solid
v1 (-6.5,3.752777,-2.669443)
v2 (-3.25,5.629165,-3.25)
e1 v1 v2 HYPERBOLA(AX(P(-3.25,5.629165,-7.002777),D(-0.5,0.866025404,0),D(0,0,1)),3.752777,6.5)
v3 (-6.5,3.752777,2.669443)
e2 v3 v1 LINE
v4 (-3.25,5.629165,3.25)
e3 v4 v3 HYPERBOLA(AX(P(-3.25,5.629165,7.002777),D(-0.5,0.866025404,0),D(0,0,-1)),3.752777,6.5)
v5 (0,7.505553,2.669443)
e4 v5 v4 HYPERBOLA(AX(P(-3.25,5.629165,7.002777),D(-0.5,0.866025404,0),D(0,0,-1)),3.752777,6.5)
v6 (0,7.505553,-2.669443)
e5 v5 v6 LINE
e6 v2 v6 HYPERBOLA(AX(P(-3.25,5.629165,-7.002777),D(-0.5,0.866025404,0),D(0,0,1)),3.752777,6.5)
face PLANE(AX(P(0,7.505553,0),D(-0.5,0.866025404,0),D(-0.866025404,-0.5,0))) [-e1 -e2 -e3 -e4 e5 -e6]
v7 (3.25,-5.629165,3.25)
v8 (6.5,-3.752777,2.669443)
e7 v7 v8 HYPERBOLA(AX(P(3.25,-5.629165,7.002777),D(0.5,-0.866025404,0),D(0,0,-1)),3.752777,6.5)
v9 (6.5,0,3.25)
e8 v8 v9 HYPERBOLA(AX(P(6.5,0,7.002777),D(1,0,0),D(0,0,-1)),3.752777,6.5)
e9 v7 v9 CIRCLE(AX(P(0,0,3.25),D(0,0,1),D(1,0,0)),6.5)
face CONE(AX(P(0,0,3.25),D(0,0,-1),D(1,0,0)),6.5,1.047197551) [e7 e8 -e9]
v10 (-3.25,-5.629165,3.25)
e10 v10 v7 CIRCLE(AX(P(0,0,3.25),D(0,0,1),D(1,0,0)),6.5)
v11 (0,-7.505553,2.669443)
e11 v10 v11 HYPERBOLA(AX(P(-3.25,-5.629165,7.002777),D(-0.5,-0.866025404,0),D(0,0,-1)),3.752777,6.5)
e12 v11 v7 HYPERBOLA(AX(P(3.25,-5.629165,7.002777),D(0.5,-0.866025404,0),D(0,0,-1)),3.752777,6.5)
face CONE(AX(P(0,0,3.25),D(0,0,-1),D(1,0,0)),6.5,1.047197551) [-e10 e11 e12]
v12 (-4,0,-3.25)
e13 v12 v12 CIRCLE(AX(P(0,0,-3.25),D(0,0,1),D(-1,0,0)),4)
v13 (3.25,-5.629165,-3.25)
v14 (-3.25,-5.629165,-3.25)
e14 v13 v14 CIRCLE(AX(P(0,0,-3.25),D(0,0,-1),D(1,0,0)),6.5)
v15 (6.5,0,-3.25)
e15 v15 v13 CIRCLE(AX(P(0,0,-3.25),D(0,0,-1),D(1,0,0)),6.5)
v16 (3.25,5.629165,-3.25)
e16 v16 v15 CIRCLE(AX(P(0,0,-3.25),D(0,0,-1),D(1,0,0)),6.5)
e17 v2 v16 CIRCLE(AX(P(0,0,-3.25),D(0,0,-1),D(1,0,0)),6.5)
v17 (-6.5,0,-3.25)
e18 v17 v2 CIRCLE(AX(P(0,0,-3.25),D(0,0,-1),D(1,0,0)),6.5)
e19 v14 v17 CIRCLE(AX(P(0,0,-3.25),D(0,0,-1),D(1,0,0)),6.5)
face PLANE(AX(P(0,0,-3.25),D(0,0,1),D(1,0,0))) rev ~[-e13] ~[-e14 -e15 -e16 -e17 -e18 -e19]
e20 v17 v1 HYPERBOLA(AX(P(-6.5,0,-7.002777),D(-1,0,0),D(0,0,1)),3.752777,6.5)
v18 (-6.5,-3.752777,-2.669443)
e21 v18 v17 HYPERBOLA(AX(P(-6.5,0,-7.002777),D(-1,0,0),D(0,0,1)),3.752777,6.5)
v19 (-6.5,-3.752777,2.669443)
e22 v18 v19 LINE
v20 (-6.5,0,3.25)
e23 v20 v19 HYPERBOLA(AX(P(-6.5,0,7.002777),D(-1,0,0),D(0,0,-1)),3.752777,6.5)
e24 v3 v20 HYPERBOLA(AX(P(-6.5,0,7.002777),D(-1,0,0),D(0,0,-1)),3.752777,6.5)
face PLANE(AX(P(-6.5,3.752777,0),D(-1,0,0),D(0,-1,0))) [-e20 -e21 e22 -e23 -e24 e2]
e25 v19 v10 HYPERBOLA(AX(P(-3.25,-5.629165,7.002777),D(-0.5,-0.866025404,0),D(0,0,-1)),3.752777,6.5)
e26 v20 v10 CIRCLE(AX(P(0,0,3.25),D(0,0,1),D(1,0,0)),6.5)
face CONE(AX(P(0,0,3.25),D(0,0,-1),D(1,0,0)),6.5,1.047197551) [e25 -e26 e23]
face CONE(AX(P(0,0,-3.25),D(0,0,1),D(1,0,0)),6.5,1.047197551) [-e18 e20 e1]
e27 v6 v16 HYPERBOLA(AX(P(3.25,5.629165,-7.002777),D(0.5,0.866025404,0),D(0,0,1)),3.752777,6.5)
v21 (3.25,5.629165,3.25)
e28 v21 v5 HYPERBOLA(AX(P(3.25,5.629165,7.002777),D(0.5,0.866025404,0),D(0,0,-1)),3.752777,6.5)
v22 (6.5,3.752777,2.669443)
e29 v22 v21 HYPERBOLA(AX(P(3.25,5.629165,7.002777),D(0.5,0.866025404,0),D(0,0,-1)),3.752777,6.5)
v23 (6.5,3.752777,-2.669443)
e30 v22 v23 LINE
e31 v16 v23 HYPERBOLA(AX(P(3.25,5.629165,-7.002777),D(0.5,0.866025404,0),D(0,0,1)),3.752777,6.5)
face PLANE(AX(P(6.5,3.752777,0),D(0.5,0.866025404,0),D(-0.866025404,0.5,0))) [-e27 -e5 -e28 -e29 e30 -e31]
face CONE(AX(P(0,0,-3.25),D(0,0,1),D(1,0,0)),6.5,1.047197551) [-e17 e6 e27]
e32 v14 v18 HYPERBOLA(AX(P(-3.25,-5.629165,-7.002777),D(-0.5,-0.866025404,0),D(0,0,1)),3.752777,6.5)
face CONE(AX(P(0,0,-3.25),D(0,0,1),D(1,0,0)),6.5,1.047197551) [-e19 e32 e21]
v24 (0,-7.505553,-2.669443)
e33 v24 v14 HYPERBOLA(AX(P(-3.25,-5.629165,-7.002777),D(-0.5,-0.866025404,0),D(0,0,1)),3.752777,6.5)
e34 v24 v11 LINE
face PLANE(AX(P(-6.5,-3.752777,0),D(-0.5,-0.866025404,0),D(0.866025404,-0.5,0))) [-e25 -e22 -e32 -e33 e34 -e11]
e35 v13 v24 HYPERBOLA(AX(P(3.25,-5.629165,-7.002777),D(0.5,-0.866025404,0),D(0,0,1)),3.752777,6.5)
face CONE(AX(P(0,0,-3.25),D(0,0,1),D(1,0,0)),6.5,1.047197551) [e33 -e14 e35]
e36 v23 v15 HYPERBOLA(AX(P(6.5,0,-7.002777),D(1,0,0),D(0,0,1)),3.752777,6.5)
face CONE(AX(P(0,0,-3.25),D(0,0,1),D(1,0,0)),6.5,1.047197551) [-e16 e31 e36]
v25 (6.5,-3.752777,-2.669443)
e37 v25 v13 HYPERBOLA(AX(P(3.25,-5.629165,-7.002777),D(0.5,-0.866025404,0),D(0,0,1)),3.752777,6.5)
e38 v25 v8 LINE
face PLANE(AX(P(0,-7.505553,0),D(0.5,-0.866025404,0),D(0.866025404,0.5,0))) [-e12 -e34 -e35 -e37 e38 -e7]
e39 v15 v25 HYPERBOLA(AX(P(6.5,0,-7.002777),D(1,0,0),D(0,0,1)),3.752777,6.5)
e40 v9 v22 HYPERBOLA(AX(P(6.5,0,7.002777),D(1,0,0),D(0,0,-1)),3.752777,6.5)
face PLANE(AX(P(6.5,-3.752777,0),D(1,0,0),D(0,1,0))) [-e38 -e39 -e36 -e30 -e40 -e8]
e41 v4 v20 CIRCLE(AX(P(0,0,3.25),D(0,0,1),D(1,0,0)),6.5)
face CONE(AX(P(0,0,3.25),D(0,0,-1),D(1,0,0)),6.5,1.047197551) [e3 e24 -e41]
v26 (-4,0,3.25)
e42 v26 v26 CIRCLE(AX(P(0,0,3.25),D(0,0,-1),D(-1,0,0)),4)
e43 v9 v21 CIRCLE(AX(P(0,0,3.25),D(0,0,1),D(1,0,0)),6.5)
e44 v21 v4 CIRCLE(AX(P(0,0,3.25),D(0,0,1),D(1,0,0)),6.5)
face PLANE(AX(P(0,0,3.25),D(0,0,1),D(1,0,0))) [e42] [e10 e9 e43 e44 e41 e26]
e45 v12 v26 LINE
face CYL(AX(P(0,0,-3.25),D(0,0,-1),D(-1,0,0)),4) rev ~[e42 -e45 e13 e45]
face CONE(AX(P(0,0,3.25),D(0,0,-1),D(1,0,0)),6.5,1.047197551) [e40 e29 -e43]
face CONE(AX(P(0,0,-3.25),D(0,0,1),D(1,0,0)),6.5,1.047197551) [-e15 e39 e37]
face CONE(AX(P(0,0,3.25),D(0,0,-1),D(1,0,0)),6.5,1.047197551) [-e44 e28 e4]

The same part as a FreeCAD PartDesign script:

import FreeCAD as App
import Part
import Sketcher
from FreeCAD import Vector
Q = App.Units.Quantity


def faces_at(feature, points):
    """Names of the faces that lie closest to the given points."""
    faces = feature.Shape.Faces
    near = lambda p: min(range(len(faces)), key=lambda i: faces[i].distToShape(Part.Vertex(*p))[0])
    return sorted({f"Face{near(p) + 1}" for p in points})


def add_polygon(sketch, points):
    """Adds a closed chain of lines whose ends are joined by coincident constraints."""
    first, n = sketch.GeometryCount, len(points)
    for a, b in zip(points, points[1:] + points[:1]):
        sketch.addGeometry(Part.LineSegment(App.Vector(*a, 0), App.Vector(*b, 0)), False)
    for i in range(n):
        sketch.addConstraint(Sketcher.Constraint("Coincident", first + i, 2, first + (i + 1) % n, 1))

doc = App.newDocument("Part")
params = doc.addObject("Spreadsheet::Sheet", "Params")
for row, (alias, value) in enumerate([
    ("pad1_length", "6.5 mm"),
    ("sketch2_width", "4 mm"),
    ("groove_angle", "360 deg"),
    ("sketch3_width", "4 mm"),
    ("groove2_angle", "360 deg"),
    ("sketch4_diameter", "8 mm"),
    ("pad2_length", "6.5 mm"),
    ("sketch5_diameter", "13 mm"),
    ("sketch5_height", "109.18 mm"),
    ("pad3_length", "25.4 mm"),
    ("draft_angle", "60 deg"),
    ("sketch6_diameter", "13 mm"),
    ("sketch6_height", "109.18 mm"),
    ("pad4_length", "25.4 mm"),
    ("draft2_angle", "60 deg"),
], start=1):
    params.set(f"A{row}", alias)
    params.set(f"B{row}", "=" + value)
    params.setAlias(f"B{row}", alias)

body = doc.addObject("PartDesign::Body", "Body")

sketch1 = body.newObject("Sketcher::SketchObject", "Sketch")
sketch1.AttachmentSupport = (doc.getObject("XY_Plane"), [""])
sketch1.MapMode = "FlatFace"
add_polygon(sketch1, [(-6, 4), (-6, -4), (0, -8), (6, -4), (6, 4), (0, 8)])
sketch1.addConstraint([
    Sketcher.Constraint("Vertical", 0),
    Sketcher.Constraint("Vertical", 3),
    Sketcher.Constraint("Symmetric", 0, 2, 3, 2, -1, 1),
    Sketcher.Constraint("Symmetric", 1, 2, 4, 2, -1, 1),
    Sketcher.Constraint("PointOnObject", 1, 2, -2),
    Sketcher.Constraint("Parallel", 2, 5),
    Sketcher.Constraint("Horizontal", 0, 2, 2, 2),
    Sketcher.Constraint("Angle", 1, Q("-30 deg")),
    Sketcher.Constraint("DistanceX", 0, 2, 2, 2, 13.0),
    Sketcher.Constraint("DistanceY", 0, 2, 0, 1, 7.505554),
])
pad1 = body.newObject("PartDesign::Pad", "Pad")
pad1.Profile = sketch1
pad1.setExpression("Length", "Params.pad1_length")
pad1.Midplane = True

sketch2 = body.newObject("Sketcher::SketchObject", "Sketch001")
sketch2.AttachmentSupport = (doc.getObject("YZ_Plane"), [""])
sketch2.MapMode = "FlatFace"
add_polygon(sketch2, [(0, 3.2), (-4, 3.2), (0, -0.8)])
sketch2.addConstraint([
    Sketcher.Constraint("Horizontal", 0),
    Sketcher.Constraint("Vertical", 2),
    Sketcher.Constraint("PointOnObject", 1, 2, -2),
    Sketcher.Constraint("Equal", 0, 2),
    Sketcher.Constraint("DistanceX", 0, 2, 0, 1, 4.0),
    Sketcher.Constraint("DistanceY", -1, 1, 0, 2, 3.25),
])
sketch2.setExpression("Constraints[7]", "Params.sketch2_width")
groove = body.newObject("PartDesign::Groove", "Groove")
groove.Profile = sketch2
groove.ReferenceAxis = (sketch2, ["V_Axis"])
groove.setExpression("Angle", "Params.groove_angle")

sketch3 = body.newObject("Sketcher::SketchObject", "Sketch002")
sketch3.AttachmentSupport = (doc.getObject("YZ_Plane"), [""])
sketch3.MapMode = "FlatFace"
add_polygon(sketch3, [(0, -3.2), (4, -3.2), (0, 0.8)])
sketch3.addConstraint([
    Sketcher.Constraint("Horizontal", 0),
    Sketcher.Constraint("Vertical", 2),
    Sketcher.Constraint("PointOnObject", 1, 2, -2),
    Sketcher.Constraint("Equal", 0, 2),
    Sketcher.Constraint("DistanceX", 0, 1, 0, 2, 4.0),
    Sketcher.Constraint("DistanceY", 0, 2, -1, 1, 3.25),
])
sketch3.setExpression("Constraints[7]", "Params.sketch3_width")
groove2 = body.newObject("PartDesign::Groove", "Groove001")
groove2.Profile = sketch3
groove2.ReferenceAxis = (sketch3, ["V_Axis"])
groove2.setExpression("Angle", "Params.groove2_angle")
body2 = doc.addObject("PartDesign::Body", "Body001")

sketch4 = body2.newObject("Sketcher::SketchObject", "Sketch003")
sketch4.AttachmentSupport = (doc.getObject("XY_Plane001"), [""])
sketch4.MapMode = "FlatFace"
sketch4.AttachmentOffset = App.Placement(Vector(0, 0, -3.25), App.Rotation())
sketch4.addGeometry(Part.Circle(Vector(0, 0, 0), Vector(0, 0, 1), 4), False)
sketch4.addConstraint([
    Sketcher.Constraint("Coincident", 0, 3, -1, 1),
    Sketcher.Constraint("Diameter", 0, 8.0),
])
sketch4.setExpression("Constraints[1]", "Params.sketch4_diameter")
pad2 = body2.newObject("PartDesign::Pad", "Pad001")
pad2.Profile = sketch4
pad2.setExpression("Length", "Params.pad2_length")
doc.recompute()

boolean = body.newObject("PartDesign::Boolean", "Boolean")
boolean.Type = "Cut"
boolean.addObjects([body2])
body3 = doc.addObject("PartDesign::Body", "Body002")

sketch5 = body3.newObject("Sketcher::SketchObject", "Sketch004")
sketch5.AttachmentSupport = (doc.getObject("XY_Plane002"), [""])
sketch5.MapMode = "FlatFace"
sketch5.AttachmentOffset = App.Placement(Vector(0, 0, 3.25), App.Rotation())
add_polygon(sketch5, [(-54, 55), (-54, -55), (54, -55), (54, 55)])
sketch5.addGeometry(Part.Circle(Vector(0, 0, 0), Vector(0, 0, 1), 6), False)
sketch5.addConstraint([
    Sketcher.Constraint("Vertical", 0),
    Sketcher.Constraint("Horizontal", 1),
    Sketcher.Constraint("Vertical", 2),
    Sketcher.Constraint("Horizontal", 3),
    Sketcher.Constraint("Coincident", 4, 3, -1, 1),
    Sketcher.Constraint("Symmetric", 0, 2, 2, 2, -1, 1),
    Sketcher.Constraint("Diameter", 4, 13.0),
    Sketcher.Constraint("DistanceY", 0, 2, 0, 1, 109.18),
    Sketcher.Constraint("DistanceX", 1, 1, 1, 2, 107.168),
])
sketch5.setExpression("Constraints[10]", "Params.sketch5_diameter")
sketch5.setExpression("Constraints[11]", "Params.sketch5_height")
pad3 = body3.newObject("PartDesign::Pad", "Pad002")
pad3.Profile = sketch5
pad3.setExpression("Length", "Params.pad3_length")
pad3.Reversed = True
doc.recompute()

datumplane = body3.newObject("PartDesign::Plane", "DatumPlane")
datumplane.AttachmentSupport = (doc.getObject("XY_Plane002"), [""])
datumplane.MapMode = "FlatFace"
datumplane.AttachmentOffset = App.Placement(Vector(0, 0, 3.25), App.Rotation())
draft = body3.newObject("PartDesign::Draft", "Draft")
draft.Base = (pad3, faces_at(pad3, [
    (0, -54.59, -9.45),
    (53.584, 0, -9.45),
    (0, 54.59, -9.45),
    (-53.584, 0, -9.45),
    (-6.5, 0, -9.45),
]))
draft.NeutralPlane = (datumplane, [""])
draft.setExpression("Angle", "Params.draft_angle")
draft.Reversed = True
doc.recompute()

boolean2 = body.newObject("PartDesign::Boolean", "Boolean001")
boolean2.Type = "Cut"
boolean2.addObjects([body3])
body4 = doc.addObject("PartDesign::Body", "Body003")

sketch6 = body4.newObject("Sketcher::SketchObject", "Sketch005")
sketch6.AttachmentSupport = (doc.getObject("XY_Plane003"), [""])
sketch6.MapMode = "FlatFace"
sketch6.AttachmentOffset = App.Placement(Vector(0, 0, -3.25), App.Rotation())
add_polygon(sketch6, [(-54, -55), (-54, 55), (54, 55), (54, -55)])
sketch6.addGeometry(Part.Circle(Vector(0, 0, 0), Vector(0, 0, 1), 6), False)
sketch6.addConstraint([
    Sketcher.Constraint("Vertical", 0),
    Sketcher.Constraint("Horizontal", 1),
    Sketcher.Constraint("Vertical", 2),
    Sketcher.Constraint("Horizontal", 3),
    Sketcher.Constraint("Coincident", 4, 3, -1, 1),
    Sketcher.Constraint("Symmetric", 0, 2, 2, 2, -1, 1),
    Sketcher.Constraint("Diameter", 4, 13.0),
    Sketcher.Constraint("DistanceY", 0, 1, 0, 2, 109.18),
    Sketcher.Constraint("DistanceX", 1, 1, 1, 2, 107.168),
])
sketch6.setExpression("Constraints[10]", "Params.sketch6_diameter")
sketch6.setExpression("Constraints[11]", "Params.sketch6_height")
pad4 = body4.newObject("PartDesign::Pad", "Pad003")
pad4.Profile = sketch6
pad4.setExpression("Length", "Params.pad4_length")
doc.recompute()

datumplane2 = body4.newObject("PartDesign::Plane", "DatumPlane001")
datumplane2.AttachmentSupport = (doc.getObject("XY_Plane003"), [""])
datumplane2.MapMode = "FlatFace"
datumplane2.AttachmentOffset = App.Placement(Vector(0, 0, -3.25), App.Rotation())
draft2 = body4.newObject("PartDesign::Draft", "Draft001")
draft2.Base = (pad4, faces_at(pad4, [
    (0, -54.59, 9.45),
    (53.584, 0, 9.45),
    (0, 54.59, 9.45),
    (-53.584, 0, 9.45),
    (-6.5, 0, 9.45),
]))
draft2.NeutralPlane = (datumplane2, [""])
draft2.setExpression("Angle", "Params.draft2_angle")
draft2.Reversed = False
doc.recompute()

boolean3 = body.newObject("PartDesign::Boolean", "Boolean002")
boolean3.Type = "Cut"
boolean3.addObjects([body4])

doc.recompute()
